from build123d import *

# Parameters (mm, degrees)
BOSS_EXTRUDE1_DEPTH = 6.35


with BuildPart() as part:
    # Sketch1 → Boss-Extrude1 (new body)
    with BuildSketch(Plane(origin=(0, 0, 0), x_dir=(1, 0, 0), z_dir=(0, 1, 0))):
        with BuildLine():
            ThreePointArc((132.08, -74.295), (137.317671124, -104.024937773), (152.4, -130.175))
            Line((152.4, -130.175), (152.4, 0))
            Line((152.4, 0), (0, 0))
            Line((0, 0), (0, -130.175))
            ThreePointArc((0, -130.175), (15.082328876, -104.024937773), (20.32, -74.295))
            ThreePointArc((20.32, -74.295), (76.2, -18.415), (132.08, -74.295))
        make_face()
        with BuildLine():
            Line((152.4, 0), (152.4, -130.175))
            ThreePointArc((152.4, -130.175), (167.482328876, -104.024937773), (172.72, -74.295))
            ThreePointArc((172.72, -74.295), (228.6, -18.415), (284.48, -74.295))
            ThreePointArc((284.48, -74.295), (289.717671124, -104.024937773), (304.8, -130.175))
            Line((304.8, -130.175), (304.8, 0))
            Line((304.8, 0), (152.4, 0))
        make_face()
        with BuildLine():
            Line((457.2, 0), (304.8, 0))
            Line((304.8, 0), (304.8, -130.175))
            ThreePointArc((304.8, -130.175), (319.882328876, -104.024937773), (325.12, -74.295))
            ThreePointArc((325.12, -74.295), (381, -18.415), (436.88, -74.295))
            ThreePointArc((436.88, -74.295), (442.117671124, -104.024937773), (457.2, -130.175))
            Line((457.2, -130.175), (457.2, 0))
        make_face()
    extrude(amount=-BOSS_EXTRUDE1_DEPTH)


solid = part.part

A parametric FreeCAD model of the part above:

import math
import FreeCAD as App
import Part
import Sketcher

V = App.Vector
Q = App.Units.Quantity

doc = App.newDocument("Part")
params = doc.addObject("Spreadsheet::Sheet", "Params")
for row, (alias, value) in enumerate([
    ("sketch1_radius", "2.2 in"),
    ("sketch1_width", "18 in"),
    ("sketch1_radius2", "3.425 in"),
    ("sketch1_height", "5.125 in"),
    ("pad1_length", "0.25 in"),
], start=1):
    params.set(f"A{row}", alias)
    params.set(f"B{row}", "=" + value)
    params.setAlias(f"B{row}", alias)

body = doc.addObject("PartDesign::Body", "Body")

sketch1 = doc.addObject("Sketcher::SketchObject", "Sketch")
body.addObject(sketch1)
sketch1.AttachmentSupport = (doc.XZ_Plane, [""])
sketch1.MapMode = "FlatFace"
sketch1.addGeometry([
    Part.ArcOfCircle(Part.Circle(V(219, 74, 0), V(0, 0, 1), 87), math.radians(140), math.radians(180)),
    Part.ArcOfCircle(Part.Circle(V(86, 74, 0), V(0, 0, 1), 87), math.radians(0), math.radians(40)),
    Part.ArcOfCircle(Part.Circle(V(229, 74, 0), V(0, 0, 1), 56), math.radians(180), math.radians(360)),
    Part.ArcOfCircle(Part.Circle(V(371, 74, 0), V(0, 0, 1), 87), math.radians(140), math.radians(180)),
    Part.ArcOfCircle(Part.Circle(V(238, 74, 0), V(0, 0, 1), 87), math.radians(0), math.radians(40)),
    Part.ArcOfCircle(Part.Circle(V(381, 74, 0), V(0, 0, 1), 56), math.radians(180), math.radians(360)),
    Part.ArcOfCircle(Part.Circle(V(524, 74, 0), V(0, 0, 1), 87), math.radians(140), math.radians(180)),
    Part.LineSegment(V(457, 130, 0), V(457, 0, 0)),
    Part.LineSegment(V(457, 0, 0), V(0, 0, 0)),
    Part.LineSegment(V(0, 0, 0), V(0, 130, 0)),
    Part.ArcOfCircle(Part.Circle(V(-67, 74, 0), V(0, 0, 1), 87), math.radians(0), math.radians(40)),
    Part.ArcOfCircle(Part.Circle(V(76, 74, 0), V(0, 0, 1), 56), math.radians(180), math.radians(360)),
], False)
sketch1.addConstraint([
    Sketcher.Constraint("Coincident", 0, 1, 1, 2),
    Sketcher.Constraint("Tangent", 1, 1, 2, 1),
    Sketcher.Constraint("Tangent", 2, 2, 3, 2),
    Sketcher.Constraint("Coincident", 3, 1, 4, 2),
    Sketcher.Constraint("Tangent", 4, 1, 5, 1),
    Sketcher.Constraint("Tangent", 5, 2, 6, 2),
    Sketcher.Constraint("Coincident", 6, 1, 7, 1),
    Sketcher.Constraint("Coincident", 7, 2, 8, 1),
    Sketcher.Constraint("Coincident", 8, 2, 9, 1),
    Sketcher.Constraint("Coincident", 9, 2, 10, 2),
    Sketcher.Constraint("Tangent", 10, 1, 11, 1),
    Sketcher.Constraint("Tangent", 11, 2, 0, 2),
    Sketcher.Constraint("Vertical", 7),
    Sketcher.Constraint("Horizontal", 8),
    Sketcher.Constraint("Vertical", 9),
    Sketcher.Constraint("Coincident", 8, 2, -1, 1),
    Sketcher.Constraint("Equal", 0, 1),
    Sketcher.Constraint("Equal", 1, 3),
    Sketcher.Constraint("Equal", 3, 4),
    Sketcher.Constraint("Equal", 2, 5),
    Sketcher.Constraint("Equal", 4, 6),
    Sketcher.Constraint("Equal", 6, 10),
    Sketcher.Constraint("Equal", 5, 11),
    Sketcher.Constraint("Horizontal", 0, 3, 1, 3),
    Sketcher.Constraint("Horizontal", 1, 3, 2, 3),
    Sketcher.Constraint("Horizontal", 2, 3, 3, 3),
    Sketcher.Constraint("Horizontal", 3, 3, 4, 3),
    Sketcher.Constraint("Horizontal", 4, 3, 5, 3),
    Sketcher.Constraint("Horizontal", 5, 3, 6, 3),
    Sketcher.Constraint("Horizontal", 6, 3, 10, 3),
    Sketcher.Constraint("Horizontal", 10, 3, 11, 3),
    Sketcher.Constraint("Horizontal", 0, 1, 3, 1),
    Sketcher.Constraint("Horizontal", 3, 1, 6, 1),
    Sketcher.Constraint("Horizontal", 6, 1, 9, 2),
    Sketcher.Constraint("Radius", 2, Q("2.2 in")),
    Sketcher.Constraint("DistanceX", 8, 2, 8, 1, Q("18 in")),
    Sketcher.Constraint("Radius", 0, Q("3.425 in")),
    Sketcher.Constraint("DistanceY", 7, 2, 7, 1, Q("5.125 in")),
])
sketch1.setExpression("Constraints[34]", "Params.sketch1_radius")
sketch1.setExpression("Constraints[35]", "Params.sketch1_width")
sketch1.setExpression("Constraints[36]", "Params.sketch1_radius2")
sketch1.setExpression("Constraints[37]", "Params.sketch1_height")
pad1 = doc.addObject("PartDesign::Pad", "Pad")
body.addObject(pad1)
pad1.Profile = sketch1
pad1.setExpression("Length", "Params.pad1_length")

doc.recompute()
